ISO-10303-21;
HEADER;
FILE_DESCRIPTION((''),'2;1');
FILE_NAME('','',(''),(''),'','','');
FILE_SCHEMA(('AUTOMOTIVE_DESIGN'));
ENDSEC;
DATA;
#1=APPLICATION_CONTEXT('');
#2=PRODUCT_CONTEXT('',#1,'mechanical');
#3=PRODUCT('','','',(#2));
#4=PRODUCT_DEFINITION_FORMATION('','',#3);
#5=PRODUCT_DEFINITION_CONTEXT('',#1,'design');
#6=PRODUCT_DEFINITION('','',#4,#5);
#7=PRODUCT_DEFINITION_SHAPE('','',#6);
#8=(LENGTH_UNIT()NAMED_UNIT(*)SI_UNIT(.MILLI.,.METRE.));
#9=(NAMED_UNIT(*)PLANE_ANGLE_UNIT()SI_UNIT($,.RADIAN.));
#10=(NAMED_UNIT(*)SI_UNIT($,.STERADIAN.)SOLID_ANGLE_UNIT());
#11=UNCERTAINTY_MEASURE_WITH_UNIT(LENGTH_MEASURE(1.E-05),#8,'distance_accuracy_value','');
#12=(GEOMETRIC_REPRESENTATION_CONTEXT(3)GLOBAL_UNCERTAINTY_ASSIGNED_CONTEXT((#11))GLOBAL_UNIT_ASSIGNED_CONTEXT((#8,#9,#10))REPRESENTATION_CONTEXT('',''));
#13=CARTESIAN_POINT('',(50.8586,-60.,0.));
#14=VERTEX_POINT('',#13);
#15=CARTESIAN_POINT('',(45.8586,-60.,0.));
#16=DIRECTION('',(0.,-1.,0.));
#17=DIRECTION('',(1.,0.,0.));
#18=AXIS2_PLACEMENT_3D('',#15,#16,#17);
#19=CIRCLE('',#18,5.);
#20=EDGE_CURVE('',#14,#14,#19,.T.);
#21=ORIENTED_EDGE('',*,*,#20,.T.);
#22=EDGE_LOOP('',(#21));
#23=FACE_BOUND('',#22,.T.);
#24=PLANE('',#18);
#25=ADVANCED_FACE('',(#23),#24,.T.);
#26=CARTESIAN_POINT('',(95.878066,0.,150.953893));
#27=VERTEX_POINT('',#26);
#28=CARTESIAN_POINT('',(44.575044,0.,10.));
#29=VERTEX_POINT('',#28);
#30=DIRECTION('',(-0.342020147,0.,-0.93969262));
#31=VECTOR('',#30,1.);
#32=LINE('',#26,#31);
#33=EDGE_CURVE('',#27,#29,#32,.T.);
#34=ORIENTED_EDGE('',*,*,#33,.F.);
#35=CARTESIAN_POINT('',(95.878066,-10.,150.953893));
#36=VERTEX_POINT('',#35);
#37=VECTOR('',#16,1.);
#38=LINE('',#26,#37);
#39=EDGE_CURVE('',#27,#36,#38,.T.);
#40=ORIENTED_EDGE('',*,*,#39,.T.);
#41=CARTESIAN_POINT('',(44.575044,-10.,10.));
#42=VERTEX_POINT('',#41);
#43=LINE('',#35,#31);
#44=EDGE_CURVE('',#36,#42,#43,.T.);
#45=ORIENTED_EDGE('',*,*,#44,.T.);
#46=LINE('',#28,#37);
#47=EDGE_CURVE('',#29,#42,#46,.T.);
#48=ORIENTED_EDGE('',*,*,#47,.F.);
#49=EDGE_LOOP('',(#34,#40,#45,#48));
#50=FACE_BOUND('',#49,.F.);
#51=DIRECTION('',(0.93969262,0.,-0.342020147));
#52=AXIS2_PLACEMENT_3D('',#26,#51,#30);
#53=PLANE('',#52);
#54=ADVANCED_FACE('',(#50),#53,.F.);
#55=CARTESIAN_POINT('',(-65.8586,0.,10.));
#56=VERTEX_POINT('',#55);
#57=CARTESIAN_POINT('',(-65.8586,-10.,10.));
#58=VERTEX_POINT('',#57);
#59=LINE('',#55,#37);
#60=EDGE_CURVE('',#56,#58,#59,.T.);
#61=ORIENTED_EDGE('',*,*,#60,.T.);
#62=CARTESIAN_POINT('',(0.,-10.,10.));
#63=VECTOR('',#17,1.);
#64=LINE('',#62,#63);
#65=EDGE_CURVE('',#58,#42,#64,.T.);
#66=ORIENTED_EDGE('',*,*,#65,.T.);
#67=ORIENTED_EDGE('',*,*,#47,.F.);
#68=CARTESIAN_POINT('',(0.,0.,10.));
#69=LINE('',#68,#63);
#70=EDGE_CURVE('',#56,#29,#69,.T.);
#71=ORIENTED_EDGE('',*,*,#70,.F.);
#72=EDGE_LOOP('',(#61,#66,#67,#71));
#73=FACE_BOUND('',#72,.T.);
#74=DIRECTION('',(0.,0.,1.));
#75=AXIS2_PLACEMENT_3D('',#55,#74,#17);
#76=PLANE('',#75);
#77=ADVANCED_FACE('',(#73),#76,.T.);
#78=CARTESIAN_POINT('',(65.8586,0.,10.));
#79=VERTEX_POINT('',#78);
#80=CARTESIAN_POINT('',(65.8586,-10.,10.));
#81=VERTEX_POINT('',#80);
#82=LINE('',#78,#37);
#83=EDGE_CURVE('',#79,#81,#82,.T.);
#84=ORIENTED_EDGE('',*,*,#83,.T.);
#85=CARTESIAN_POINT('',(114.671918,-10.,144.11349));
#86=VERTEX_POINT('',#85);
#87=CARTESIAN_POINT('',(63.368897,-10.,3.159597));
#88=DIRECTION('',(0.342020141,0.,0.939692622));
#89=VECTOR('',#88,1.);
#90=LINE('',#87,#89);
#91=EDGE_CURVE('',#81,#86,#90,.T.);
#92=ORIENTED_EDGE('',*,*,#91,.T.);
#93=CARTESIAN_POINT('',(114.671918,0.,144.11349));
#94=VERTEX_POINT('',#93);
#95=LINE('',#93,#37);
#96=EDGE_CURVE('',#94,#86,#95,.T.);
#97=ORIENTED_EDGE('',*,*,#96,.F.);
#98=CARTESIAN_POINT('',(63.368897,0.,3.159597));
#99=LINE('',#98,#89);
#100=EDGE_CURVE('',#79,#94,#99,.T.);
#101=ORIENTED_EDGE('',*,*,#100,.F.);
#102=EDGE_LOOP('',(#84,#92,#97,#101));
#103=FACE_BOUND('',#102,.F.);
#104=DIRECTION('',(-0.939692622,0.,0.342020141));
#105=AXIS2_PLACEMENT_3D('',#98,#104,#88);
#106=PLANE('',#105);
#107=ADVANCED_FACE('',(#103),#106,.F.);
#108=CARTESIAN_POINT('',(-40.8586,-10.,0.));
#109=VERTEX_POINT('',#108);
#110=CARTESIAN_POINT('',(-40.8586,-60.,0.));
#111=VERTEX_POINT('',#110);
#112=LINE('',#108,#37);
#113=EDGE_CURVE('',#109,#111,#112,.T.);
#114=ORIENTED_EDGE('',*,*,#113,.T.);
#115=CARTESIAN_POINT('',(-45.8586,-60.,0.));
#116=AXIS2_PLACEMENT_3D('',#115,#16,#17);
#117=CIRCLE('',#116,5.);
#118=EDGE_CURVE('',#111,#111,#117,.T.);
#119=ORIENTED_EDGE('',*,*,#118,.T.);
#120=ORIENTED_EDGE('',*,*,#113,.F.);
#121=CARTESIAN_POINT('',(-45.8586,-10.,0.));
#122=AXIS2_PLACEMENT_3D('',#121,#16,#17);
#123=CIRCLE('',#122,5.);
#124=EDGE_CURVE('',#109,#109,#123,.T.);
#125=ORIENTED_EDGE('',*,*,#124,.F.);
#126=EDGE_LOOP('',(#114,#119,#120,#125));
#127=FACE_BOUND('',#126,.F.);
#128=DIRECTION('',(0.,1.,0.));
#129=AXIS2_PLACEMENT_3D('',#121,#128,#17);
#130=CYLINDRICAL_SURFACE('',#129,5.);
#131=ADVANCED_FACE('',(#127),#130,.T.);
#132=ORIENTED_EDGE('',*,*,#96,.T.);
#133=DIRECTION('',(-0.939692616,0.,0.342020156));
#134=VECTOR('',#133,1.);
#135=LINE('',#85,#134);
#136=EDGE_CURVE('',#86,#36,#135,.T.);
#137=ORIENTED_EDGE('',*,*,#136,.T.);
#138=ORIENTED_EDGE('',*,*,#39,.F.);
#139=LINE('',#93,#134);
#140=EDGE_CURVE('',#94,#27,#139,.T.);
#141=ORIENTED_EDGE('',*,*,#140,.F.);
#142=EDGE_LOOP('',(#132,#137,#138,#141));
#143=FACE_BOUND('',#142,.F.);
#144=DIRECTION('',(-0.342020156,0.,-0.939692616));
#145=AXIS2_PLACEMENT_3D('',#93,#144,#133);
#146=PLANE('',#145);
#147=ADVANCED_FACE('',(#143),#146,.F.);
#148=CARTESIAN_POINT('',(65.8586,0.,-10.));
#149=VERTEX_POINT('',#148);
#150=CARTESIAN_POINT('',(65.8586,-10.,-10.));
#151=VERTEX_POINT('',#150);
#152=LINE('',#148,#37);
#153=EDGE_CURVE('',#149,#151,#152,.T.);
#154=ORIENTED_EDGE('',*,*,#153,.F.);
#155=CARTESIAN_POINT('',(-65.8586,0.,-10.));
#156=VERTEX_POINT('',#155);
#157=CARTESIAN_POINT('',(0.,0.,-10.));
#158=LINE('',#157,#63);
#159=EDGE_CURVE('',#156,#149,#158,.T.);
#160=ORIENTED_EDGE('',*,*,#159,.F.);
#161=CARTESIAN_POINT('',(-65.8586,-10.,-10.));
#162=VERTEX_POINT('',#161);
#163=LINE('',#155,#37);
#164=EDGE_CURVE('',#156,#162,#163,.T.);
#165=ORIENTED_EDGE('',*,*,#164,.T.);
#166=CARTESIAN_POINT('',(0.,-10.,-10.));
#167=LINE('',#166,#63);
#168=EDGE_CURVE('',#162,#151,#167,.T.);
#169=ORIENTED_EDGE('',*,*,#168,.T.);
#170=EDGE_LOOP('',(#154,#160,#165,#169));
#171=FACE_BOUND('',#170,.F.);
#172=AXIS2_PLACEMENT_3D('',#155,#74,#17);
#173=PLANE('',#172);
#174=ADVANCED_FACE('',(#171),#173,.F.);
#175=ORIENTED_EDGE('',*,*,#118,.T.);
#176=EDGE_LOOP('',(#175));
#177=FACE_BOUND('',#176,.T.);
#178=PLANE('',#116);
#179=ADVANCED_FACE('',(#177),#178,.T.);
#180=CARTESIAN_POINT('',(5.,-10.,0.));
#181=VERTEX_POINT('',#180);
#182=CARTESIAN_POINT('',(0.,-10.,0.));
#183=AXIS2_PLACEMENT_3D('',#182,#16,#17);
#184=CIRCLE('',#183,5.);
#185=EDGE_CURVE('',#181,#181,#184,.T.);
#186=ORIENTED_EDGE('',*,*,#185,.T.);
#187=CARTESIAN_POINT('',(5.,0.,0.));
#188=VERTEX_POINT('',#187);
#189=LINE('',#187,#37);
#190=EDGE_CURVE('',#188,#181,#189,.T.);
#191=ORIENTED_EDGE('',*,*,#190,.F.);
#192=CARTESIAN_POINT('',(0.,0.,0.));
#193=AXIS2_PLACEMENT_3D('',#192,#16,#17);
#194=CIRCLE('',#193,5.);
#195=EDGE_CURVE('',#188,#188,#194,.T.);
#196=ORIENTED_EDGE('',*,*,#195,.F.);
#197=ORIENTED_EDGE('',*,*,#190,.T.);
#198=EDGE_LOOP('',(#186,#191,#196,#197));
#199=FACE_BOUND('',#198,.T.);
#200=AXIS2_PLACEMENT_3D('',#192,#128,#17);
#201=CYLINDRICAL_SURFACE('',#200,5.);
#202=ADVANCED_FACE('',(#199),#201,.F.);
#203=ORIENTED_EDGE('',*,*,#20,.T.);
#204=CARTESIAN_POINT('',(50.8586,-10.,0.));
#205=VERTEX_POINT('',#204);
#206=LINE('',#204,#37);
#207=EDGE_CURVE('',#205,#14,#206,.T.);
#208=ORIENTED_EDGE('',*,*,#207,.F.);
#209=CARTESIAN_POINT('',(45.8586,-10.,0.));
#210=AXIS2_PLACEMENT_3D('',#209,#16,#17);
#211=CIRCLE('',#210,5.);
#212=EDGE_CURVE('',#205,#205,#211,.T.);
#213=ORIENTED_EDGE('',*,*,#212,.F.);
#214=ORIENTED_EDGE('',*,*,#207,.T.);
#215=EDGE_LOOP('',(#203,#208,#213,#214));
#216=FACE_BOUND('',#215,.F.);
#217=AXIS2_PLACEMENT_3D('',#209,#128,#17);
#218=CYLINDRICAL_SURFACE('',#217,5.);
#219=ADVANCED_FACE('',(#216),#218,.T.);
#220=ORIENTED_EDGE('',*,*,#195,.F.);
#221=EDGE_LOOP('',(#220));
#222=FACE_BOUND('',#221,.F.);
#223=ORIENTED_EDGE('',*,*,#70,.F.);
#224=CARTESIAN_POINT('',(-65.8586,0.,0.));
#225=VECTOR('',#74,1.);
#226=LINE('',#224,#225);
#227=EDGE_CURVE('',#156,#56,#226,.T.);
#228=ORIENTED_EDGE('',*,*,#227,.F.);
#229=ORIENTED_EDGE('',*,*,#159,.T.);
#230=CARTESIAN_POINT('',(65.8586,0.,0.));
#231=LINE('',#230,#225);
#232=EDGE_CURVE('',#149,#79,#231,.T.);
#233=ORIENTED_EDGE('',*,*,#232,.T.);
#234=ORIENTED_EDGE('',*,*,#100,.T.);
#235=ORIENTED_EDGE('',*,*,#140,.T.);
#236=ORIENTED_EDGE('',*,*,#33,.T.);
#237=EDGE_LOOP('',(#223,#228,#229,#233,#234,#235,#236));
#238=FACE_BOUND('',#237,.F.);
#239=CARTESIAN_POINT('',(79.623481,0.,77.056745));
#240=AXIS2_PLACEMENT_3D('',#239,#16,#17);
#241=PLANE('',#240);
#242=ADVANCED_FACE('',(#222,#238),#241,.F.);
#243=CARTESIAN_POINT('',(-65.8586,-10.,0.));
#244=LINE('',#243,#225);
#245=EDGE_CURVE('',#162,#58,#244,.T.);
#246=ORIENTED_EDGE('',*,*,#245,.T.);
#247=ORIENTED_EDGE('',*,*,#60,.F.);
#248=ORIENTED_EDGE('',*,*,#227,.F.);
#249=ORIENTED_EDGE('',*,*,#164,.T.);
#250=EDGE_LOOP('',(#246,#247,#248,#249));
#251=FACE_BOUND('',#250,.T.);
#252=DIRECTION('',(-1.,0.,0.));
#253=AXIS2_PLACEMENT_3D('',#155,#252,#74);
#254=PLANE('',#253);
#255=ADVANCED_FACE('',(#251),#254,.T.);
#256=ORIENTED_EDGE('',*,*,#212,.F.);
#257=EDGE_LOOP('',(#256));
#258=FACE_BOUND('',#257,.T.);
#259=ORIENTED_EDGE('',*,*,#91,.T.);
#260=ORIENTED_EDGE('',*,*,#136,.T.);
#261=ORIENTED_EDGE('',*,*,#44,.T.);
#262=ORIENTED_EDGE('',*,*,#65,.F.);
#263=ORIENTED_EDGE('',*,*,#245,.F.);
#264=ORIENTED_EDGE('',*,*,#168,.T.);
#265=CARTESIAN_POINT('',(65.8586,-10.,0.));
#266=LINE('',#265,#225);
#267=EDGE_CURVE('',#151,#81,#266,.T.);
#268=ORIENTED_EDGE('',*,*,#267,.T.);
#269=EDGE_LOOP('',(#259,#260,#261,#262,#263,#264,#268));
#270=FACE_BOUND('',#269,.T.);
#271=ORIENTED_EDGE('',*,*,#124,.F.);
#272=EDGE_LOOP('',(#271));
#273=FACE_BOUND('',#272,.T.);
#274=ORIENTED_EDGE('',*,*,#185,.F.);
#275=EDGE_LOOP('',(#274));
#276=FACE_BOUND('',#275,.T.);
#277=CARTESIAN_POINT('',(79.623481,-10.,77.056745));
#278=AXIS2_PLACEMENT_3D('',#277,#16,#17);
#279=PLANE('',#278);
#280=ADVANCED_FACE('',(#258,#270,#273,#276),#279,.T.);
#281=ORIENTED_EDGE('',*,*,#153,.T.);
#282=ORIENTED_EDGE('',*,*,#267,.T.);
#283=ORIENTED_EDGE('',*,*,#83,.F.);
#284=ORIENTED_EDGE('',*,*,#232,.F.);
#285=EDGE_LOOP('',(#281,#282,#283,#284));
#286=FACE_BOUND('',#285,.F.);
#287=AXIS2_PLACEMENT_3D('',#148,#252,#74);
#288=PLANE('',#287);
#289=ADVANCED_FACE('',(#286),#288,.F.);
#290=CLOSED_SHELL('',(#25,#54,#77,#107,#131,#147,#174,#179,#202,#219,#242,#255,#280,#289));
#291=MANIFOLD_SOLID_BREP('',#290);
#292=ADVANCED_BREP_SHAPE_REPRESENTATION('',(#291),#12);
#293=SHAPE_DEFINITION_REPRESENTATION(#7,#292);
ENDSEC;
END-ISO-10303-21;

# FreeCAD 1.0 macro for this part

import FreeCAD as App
import Part
import Sketcher

V = App.Vector
Q = App.Units.Quantity


def add_polygon(sketch, points):
    """Adds a closed chain of lines whose ends are joined by coincident constraints."""
    first, n = sketch.GeometryCount, len(points)
    for a, b in zip(points, points[1:] + points[:1]):
        sketch.addGeometry(Part.LineSegment(App.Vector(*a, 0), App.Vector(*b, 0)), False)
    for i in range(n):
        sketch.addConstraint(Sketcher.Constraint("Coincident", first + i, 2, first + (i + 1) % n, 1))

doc = App.newDocument("Part")
body = doc.addObject("PartDesign::Body", "Body")

sketch1 = body.newObject("Sketcher::SketchObject", "Sketch")
sketch1.AttachmentSupport = (doc.getObject("XZ_Plane"), [""])
sketch1.MapMode = "FlatFace"
add_polygon(sketch1, [(-66, 10), (-66, -10), (66, -10), (66, 10)])
sketch1.addGeometry(Part.Circle(V(0, 0, 0), V(0, 0, 1), 5), False)
sketch1.addConstraint([
    Sketcher.Constraint("Vertical", 0),
    Sketcher.Constraint("Horizontal", 1),
    Sketcher.Constraint("Vertical", 2),
    Sketcher.Constraint("Horizontal", 3),
    Sketcher.Constraint("Coincident", 4, 3, -1, 1),
    Sketcher.Constraint("Symmetric", 0, 2, 2, 2, -1, 1),
    Sketcher.Constraint("Diameter", 4, 10.0),
    Sketcher.Constraint("DistanceY", 0, 2, 0, 1, 20.0),
    Sketcher.Constraint("DistanceX", 1, 1, 1, 2, 131.7172),
])
pad1 = body.newObject("PartDesign::Pad", "Pad")
pad1.Profile = sketch1
pad1.Length = 10

sketch2 = body.newObject("Sketcher::SketchObject", "Sketch001")
sketch2.AttachmentSupport = (doc.getObject("XZ_Plane"), [""])
sketch2.MapMode = "FlatFace"
sketch2.AttachmentOffset = App.Placement(V(0, 0, 10), App.Rotation())
sketch2.addGeometry([
    Part.Circle(V(-46, 0, 0), V(0, 0, 1), 5),
    Part.Circle(V(46, 0, 0), V(0, 0, 1), 5),
], False)
sketch2.addConstraint([
    Sketcher.Constraint("Equal", 0, 1),
    Sketcher.Constraint("Symmetric", 0, 3, 1, 3, -1, 1),
    Sketcher.Constraint("PointOnObject", 0, 3, -1),
    Sketcher.Constraint("Diameter", 0, 10.0),
    Sketcher.Constraint("DistanceX", 0, 3, -1, 1, 45.8586),
])
pad2 = body.newObject("PartDesign::Pad", "Pad001")
pad2.Profile = sketch2
pad2.Length = 50

sketch3 = body.newObject("Sketcher::SketchObject", "Sketch002")
sketch3.AttachmentSupport = (doc.getObject("XZ_Plane"), [""])
sketch3.MapMode = "FlatFace"
add_polygon(sketch3, [(96, 151), (45, 10), (63, 3), (115, 144)])
sketch3.addConstraint([
    Sketcher.Constraint("Perpendicular", 0, 1),
    Sketcher.Constraint("Perpendicular", 1, 2),
    Sketcher.Constraint("Perpendicular", 2, 3),
    Sketcher.Constraint("Angle", 0, Q("-110 deg")),
    Sketcher.Constraint("Distance", 0, 150.0),
    Sketcher.Constraint("Distance", 1, 20.000001),
    Sketcher.Constraint("DistanceY", -1, 1, 0, 2, 10.0),
    Sketcher.Constraint("DistanceX", -1, 1, 2, 2, 114.671918),
])
pad3 = body.newObject("PartDesign::Pad", "Pad002")
pad3.Profile = sketch3
pad3.Length = 10

doc.recompute()
